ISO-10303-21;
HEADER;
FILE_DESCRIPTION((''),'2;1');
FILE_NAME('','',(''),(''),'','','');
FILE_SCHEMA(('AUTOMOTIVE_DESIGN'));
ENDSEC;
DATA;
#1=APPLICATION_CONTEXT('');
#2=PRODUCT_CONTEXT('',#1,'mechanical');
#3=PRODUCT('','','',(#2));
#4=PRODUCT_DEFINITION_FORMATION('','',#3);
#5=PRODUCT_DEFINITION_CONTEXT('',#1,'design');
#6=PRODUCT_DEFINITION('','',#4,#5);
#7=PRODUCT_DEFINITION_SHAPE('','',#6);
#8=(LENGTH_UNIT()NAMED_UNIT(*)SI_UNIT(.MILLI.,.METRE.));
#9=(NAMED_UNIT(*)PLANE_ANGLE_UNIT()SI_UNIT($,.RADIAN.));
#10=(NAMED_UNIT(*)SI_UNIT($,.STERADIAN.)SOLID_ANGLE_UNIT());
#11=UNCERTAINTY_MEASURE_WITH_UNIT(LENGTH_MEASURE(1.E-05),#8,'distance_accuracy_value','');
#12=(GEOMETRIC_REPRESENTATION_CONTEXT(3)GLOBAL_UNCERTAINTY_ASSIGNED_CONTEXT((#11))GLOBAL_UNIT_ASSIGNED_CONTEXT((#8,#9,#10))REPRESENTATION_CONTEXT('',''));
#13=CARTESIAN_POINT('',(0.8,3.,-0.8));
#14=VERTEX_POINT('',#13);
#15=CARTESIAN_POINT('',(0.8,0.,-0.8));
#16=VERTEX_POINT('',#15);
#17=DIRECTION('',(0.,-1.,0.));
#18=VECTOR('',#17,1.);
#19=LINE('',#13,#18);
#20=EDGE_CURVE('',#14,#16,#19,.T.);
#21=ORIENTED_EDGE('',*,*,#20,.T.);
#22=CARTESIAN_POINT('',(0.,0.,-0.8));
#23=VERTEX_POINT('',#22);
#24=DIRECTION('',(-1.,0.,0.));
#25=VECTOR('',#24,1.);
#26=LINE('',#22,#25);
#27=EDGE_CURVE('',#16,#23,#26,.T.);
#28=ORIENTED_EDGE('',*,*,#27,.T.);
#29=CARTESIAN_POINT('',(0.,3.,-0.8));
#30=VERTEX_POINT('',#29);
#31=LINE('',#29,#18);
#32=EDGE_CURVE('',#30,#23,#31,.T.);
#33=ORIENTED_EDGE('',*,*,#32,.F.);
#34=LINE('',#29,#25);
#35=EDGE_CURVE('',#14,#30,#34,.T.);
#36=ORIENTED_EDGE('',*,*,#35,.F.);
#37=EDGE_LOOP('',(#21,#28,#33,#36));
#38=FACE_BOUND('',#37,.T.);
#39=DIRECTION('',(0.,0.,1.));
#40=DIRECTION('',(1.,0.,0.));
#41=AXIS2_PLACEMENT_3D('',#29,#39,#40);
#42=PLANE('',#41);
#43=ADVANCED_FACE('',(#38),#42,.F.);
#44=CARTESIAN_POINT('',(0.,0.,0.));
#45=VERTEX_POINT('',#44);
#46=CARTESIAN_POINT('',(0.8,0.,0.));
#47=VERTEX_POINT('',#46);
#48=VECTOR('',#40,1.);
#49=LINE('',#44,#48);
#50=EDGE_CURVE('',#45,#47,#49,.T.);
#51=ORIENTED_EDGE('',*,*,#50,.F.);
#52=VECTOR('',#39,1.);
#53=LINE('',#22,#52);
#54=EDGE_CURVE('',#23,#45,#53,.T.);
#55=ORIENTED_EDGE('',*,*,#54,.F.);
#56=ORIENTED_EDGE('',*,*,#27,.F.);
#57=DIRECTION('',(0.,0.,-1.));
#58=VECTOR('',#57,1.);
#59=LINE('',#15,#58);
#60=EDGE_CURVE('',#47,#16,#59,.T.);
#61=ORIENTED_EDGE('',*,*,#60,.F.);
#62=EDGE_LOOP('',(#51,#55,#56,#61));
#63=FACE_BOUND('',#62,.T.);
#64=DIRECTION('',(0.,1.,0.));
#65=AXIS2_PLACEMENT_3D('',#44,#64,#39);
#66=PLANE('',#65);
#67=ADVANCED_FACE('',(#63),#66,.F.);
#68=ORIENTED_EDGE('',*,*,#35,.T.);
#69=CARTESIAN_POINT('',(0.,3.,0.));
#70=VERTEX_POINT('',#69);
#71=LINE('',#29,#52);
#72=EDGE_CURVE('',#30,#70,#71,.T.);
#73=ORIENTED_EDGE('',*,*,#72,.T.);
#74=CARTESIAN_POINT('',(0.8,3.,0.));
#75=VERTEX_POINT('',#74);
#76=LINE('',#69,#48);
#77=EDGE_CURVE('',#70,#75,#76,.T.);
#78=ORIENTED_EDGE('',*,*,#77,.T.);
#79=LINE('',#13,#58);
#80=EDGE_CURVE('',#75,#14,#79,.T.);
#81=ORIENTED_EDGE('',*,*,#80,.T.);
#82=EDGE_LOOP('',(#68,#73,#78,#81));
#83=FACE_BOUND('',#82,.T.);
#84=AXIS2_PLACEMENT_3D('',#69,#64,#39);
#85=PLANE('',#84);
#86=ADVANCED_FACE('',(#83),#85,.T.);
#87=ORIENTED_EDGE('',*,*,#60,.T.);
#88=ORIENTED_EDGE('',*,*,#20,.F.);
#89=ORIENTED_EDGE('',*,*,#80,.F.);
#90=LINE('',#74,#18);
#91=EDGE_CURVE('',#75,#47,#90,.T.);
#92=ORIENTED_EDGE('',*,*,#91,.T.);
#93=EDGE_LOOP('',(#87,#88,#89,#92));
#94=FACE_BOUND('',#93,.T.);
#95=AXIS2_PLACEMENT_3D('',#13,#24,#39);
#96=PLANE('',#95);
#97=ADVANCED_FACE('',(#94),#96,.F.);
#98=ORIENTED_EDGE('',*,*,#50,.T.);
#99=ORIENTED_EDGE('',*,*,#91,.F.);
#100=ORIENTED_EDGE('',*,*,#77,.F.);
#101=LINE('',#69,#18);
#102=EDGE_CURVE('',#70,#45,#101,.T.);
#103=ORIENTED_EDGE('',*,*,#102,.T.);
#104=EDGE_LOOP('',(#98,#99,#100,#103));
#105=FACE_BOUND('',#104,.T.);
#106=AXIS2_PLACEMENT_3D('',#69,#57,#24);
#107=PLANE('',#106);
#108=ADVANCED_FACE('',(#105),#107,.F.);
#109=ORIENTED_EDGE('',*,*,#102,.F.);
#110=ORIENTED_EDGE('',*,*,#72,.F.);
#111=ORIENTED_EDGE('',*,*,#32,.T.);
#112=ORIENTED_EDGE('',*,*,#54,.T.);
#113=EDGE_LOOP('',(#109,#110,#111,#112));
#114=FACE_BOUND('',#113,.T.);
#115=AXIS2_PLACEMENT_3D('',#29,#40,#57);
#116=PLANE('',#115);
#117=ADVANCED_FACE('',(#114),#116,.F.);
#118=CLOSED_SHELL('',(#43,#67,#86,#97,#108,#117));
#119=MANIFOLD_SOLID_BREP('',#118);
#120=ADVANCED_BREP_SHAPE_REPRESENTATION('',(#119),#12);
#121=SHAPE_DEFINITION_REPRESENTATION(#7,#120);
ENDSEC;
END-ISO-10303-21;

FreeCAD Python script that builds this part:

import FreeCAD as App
import Part
import Sketcher

doc = App.newDocument("Part")
body = doc.addObject("PartDesign::Body", "Body")

# Sketch on XZ plane
sketch1 = body.newObject("Sketcher::SketchObject", "Sketch")
sketch1.AttachmentSupport = (doc.getObject("XZ_Plane"), [""])
sketch1.MapMode = "FlatFace"
sketch1.addGeometry([
    Part.LineSegment(App.Vector(0, -0.8, 0), App.Vector(0, 0, 0)),
    Part.LineSegment(App.Vector(0, 0, 0), App.Vector(0.8, 0, 0)),
    Part.LineSegment(App.Vector(0.8, 0, 0), App.Vector(0.8, -0.8, 0)),
    Part.LineSegment(App.Vector(0.8, -0.8, 0), App.Vector(0, -0.8, 0)),
], False)
sketch1.addConstraint([
    Sketcher.Constraint("Coincident", 0, 2, 1, 1),
    Sketcher.Constraint("Coincident", 1, 2, 2, 1),
    Sketcher.Constraint("Coincident", 2, 2, 3, 1),
    Sketcher.Constraint("Coincident", 3, 2, 0, 1),
    Sketcher.Constraint("Vertical", 0),
    Sketcher.Constraint("Horizontal", 1),
    Sketcher.Constraint("Vertical", 2),
    Sketcher.Constraint("Horizontal", 3),
    Sketcher.Constraint("Coincident", 0, 2, -1, 1),
    Sketcher.Constraint("Equal", 3, 0),
    Sketcher.Constraint("DistanceX", 1, 1, 1, 2, 0.8),
])
pad1 = body.newObject("PartDesign::Pad", "Pad")
pad1.Profile = sketch1
pad1.Length = 3
pad1.Reversed = True

doc.recompute()
